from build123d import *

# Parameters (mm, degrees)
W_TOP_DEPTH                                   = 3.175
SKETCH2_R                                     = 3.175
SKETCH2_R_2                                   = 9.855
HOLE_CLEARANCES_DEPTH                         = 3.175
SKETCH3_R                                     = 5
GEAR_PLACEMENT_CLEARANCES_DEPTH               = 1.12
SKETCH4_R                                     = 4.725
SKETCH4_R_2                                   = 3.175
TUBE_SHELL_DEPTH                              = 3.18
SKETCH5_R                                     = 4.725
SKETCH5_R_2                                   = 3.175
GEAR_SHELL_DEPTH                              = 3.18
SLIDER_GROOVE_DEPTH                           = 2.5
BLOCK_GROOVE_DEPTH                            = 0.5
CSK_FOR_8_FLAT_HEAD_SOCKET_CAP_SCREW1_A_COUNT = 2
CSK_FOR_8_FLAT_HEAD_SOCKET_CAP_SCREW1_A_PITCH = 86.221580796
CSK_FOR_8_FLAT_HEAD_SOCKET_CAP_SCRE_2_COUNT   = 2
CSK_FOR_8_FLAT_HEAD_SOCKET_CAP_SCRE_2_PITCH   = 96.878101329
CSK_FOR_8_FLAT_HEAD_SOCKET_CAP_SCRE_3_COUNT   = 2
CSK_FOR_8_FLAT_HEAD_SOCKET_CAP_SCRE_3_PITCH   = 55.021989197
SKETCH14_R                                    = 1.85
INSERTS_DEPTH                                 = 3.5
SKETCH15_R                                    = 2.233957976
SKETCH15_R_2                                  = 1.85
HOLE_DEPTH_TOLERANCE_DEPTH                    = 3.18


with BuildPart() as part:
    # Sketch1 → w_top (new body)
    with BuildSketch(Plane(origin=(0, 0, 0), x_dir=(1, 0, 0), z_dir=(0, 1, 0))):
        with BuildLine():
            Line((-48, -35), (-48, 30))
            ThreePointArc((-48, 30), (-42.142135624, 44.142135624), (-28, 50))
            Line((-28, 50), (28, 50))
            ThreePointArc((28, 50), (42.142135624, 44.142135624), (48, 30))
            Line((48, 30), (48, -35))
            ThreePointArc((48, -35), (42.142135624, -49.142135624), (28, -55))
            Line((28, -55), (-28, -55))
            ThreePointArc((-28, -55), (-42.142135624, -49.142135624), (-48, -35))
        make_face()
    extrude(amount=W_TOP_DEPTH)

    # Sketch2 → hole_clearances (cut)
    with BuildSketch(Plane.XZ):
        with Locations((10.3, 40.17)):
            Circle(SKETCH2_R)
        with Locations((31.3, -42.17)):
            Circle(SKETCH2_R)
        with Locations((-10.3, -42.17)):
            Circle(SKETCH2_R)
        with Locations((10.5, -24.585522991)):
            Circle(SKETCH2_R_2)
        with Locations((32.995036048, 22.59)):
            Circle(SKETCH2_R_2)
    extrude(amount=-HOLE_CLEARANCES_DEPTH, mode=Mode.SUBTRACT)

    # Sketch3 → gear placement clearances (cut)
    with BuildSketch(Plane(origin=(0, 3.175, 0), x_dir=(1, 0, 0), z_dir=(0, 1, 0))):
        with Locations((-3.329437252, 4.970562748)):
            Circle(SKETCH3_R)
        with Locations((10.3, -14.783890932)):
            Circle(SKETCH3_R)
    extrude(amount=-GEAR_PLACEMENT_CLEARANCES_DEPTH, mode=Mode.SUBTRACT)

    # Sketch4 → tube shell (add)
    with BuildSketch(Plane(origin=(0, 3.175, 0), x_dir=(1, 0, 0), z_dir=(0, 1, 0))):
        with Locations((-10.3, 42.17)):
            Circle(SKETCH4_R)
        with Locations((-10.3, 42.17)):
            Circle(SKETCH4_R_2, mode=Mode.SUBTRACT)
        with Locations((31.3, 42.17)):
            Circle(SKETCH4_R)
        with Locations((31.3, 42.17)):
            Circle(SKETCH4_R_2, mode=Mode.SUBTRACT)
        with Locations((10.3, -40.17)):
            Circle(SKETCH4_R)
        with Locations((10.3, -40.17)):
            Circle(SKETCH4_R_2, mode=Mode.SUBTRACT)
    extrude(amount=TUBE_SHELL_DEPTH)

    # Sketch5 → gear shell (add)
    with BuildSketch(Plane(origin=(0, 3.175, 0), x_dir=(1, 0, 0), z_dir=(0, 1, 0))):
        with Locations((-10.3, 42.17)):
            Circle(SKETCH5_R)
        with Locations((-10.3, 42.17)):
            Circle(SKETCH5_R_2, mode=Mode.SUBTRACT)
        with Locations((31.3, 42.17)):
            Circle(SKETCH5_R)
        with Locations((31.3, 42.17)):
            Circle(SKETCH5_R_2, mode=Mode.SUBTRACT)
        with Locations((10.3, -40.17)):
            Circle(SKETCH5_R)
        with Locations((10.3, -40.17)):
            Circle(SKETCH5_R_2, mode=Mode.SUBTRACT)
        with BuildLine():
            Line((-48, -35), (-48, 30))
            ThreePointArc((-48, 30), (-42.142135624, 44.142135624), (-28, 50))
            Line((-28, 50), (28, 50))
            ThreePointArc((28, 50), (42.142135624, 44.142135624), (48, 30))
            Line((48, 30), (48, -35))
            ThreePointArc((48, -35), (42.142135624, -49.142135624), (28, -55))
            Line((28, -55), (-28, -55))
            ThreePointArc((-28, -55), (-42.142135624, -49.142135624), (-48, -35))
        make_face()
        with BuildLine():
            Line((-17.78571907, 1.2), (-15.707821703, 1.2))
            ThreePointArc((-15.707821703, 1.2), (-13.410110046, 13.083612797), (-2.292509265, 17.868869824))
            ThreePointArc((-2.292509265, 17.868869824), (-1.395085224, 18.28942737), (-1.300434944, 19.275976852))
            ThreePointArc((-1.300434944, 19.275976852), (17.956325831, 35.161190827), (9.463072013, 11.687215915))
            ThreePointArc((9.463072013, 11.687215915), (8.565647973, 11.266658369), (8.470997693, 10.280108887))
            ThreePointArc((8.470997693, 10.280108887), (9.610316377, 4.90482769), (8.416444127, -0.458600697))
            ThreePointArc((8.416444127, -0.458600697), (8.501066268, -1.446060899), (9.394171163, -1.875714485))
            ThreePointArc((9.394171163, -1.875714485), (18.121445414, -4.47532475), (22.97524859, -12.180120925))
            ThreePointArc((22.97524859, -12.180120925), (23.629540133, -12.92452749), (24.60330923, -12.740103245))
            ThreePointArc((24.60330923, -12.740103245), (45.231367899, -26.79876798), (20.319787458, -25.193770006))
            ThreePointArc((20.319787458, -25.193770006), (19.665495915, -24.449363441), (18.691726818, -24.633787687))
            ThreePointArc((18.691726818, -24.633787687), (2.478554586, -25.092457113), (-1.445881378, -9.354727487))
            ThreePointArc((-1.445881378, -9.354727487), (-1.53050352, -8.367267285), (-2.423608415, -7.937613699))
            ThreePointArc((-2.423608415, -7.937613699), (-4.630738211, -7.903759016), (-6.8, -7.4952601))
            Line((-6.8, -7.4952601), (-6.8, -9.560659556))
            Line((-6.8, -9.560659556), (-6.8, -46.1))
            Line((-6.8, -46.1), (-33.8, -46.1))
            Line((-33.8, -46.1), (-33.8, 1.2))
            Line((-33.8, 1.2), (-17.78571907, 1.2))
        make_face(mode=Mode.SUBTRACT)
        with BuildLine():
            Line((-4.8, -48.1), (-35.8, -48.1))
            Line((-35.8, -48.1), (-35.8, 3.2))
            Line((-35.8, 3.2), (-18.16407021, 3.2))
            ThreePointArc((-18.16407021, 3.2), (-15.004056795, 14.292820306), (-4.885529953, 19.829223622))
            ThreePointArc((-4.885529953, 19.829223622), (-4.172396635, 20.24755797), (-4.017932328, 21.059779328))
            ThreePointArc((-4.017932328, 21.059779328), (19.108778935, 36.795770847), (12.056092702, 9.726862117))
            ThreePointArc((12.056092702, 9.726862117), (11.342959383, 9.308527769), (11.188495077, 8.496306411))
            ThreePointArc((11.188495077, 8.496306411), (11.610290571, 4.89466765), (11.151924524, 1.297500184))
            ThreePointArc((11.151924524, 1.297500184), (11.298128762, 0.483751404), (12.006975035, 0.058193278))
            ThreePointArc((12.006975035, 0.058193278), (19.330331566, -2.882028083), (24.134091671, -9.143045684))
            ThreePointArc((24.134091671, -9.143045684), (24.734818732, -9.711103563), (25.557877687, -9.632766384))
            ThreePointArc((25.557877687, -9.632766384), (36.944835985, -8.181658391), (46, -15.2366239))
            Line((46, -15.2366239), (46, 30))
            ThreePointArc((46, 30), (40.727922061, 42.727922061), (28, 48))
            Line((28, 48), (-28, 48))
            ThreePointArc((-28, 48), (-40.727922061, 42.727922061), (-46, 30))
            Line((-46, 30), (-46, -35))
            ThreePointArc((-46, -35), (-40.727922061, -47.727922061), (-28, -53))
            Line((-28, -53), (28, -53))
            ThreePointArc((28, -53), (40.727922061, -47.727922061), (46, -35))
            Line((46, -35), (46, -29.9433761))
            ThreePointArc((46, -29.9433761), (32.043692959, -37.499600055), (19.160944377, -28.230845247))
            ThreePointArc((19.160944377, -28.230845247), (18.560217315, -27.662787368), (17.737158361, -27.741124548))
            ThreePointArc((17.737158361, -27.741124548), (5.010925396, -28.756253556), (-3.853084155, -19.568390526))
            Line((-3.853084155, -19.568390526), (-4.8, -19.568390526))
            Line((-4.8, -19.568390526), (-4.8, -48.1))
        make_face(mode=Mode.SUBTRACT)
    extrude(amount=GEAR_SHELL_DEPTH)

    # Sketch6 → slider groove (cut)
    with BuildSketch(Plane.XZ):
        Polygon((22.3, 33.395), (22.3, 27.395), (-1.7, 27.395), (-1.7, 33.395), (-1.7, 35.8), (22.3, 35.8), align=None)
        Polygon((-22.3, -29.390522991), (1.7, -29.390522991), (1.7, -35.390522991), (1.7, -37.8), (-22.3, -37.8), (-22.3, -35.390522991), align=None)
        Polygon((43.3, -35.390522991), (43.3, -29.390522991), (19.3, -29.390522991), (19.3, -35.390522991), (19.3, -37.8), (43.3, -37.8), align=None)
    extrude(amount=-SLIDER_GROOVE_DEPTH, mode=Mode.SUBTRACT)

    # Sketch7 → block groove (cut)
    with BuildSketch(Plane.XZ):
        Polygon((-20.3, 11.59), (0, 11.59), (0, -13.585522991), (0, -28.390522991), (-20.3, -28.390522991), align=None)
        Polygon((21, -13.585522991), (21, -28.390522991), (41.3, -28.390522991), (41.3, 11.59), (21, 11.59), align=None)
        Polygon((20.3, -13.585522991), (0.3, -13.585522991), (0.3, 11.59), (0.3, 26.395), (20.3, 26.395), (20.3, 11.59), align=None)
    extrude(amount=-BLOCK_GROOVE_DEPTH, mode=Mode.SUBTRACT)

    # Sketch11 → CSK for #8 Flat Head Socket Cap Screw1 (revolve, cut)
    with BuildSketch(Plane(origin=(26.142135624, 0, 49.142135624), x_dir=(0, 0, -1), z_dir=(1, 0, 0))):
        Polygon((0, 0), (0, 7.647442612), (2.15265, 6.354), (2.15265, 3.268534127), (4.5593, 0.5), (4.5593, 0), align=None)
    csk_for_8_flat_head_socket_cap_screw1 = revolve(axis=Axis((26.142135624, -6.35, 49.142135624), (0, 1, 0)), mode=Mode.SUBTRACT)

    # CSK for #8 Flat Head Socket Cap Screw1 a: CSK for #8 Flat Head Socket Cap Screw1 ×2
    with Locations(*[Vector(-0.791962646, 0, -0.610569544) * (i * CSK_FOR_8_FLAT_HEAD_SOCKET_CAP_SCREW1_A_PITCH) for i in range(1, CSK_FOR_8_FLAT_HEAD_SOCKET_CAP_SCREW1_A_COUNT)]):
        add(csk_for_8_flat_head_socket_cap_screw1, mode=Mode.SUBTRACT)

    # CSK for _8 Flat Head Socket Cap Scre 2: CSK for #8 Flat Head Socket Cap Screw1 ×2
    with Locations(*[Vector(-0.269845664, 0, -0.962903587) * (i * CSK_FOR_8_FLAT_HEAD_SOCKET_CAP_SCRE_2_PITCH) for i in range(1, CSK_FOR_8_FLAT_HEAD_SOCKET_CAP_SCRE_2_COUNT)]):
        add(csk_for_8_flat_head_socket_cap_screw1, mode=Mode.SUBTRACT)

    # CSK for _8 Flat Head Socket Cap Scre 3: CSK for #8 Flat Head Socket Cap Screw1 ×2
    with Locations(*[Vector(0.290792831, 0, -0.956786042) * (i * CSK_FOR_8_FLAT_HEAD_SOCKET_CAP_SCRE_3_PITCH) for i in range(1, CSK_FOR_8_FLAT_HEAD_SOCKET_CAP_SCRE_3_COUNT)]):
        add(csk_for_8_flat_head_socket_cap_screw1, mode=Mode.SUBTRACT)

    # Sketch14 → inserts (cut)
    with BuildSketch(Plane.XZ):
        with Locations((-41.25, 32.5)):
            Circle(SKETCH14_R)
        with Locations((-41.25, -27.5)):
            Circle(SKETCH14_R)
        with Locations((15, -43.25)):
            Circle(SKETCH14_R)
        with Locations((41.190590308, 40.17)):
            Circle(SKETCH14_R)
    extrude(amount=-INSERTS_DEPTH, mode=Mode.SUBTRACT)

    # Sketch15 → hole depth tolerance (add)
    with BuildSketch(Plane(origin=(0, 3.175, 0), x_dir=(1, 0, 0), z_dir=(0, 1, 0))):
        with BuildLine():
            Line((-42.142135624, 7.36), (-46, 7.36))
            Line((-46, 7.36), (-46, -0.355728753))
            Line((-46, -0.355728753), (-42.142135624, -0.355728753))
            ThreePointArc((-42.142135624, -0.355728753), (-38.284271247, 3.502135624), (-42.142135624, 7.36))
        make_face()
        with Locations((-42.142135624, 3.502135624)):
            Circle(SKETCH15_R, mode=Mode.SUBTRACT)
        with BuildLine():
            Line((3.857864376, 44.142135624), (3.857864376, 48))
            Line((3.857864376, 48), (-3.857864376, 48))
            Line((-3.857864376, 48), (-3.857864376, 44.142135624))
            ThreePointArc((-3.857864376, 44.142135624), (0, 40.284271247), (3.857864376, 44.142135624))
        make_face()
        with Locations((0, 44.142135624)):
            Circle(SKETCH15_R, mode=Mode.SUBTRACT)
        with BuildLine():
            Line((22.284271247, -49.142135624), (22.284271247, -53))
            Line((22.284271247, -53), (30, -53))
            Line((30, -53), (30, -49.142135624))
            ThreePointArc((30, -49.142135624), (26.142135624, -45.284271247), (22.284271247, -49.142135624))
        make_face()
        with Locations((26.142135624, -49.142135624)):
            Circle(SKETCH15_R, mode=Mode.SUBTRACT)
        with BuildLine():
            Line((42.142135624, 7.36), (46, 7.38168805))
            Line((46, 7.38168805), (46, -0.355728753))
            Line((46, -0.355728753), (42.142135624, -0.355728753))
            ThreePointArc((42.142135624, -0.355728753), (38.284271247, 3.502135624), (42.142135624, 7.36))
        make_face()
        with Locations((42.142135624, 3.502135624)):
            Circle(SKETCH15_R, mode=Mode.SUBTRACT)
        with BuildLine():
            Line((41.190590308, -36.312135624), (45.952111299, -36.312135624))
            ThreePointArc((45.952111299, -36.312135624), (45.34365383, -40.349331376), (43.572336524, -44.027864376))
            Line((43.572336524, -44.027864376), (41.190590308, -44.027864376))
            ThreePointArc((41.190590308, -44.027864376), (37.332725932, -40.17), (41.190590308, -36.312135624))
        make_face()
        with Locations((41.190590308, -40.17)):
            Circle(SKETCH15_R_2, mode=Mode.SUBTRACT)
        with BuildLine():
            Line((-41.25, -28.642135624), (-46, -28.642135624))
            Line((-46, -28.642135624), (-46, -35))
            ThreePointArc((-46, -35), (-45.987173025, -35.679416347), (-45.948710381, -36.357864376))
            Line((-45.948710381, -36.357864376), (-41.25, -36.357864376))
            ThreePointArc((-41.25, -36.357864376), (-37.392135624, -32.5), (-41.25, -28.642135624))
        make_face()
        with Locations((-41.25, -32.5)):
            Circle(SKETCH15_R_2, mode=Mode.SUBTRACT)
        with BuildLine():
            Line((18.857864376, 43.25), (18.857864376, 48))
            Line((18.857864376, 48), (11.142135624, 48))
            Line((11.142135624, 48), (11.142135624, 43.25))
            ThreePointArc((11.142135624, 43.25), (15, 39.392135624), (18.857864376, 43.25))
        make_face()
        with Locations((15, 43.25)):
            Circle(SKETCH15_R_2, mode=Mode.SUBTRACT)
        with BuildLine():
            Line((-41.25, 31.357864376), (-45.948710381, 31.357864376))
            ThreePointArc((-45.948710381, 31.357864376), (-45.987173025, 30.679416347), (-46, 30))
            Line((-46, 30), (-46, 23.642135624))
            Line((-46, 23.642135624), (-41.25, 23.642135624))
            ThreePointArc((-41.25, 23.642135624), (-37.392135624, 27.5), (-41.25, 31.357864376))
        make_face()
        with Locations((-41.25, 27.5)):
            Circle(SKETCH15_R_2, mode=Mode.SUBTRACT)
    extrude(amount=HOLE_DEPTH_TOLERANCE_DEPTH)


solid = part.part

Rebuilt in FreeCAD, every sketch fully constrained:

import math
import FreeCAD as App
import Part
import Sketcher

V = App.Vector
Q = App.Units.Quantity

doc = App.newDocument("Part")
params = doc.addObject("Spreadsheet::Sheet", "Params")
for row, (alias, value) in enumerate([
    ("sketch1_radius", "20 mm"),
    ("sketch1_width", "56 mm"),
    ("sketch1_height", "65 mm"),
    ("pad1_length", "3.175 mm"),
    ("sketch2_diameter", "6.35 mm"),
    ("sketch2_diameter2", "19.71 mm"),
    ("pocket1_length", "3.175 mm"),
    ("sketch3_diameter", "10 mm"),
    ("pocket2_length", "1.12 mm"),
    ("sketch4_diameter", "9.45 mm"),
    ("sketch4_diameter2", "6.35 mm"),
    ("pad2_length", "3.18 mm"),
    ("sketch5_radius", "20 mm"),
    ("sketch5_radius2", "1 mm"),
    ("sketch5_radius3", "18 mm"),
    ("sketch5_width", "56 mm"),
    ("sketch5_width2", "27 mm"),
    ("pad3_length", "3.18 mm"),
    ("sketch6_width", "24 mm"),
    ("pocket3_length", "2.5 mm"),
    ("sketch7_width", "20 mm"),
    ("sketch7_width2", "20.3 mm"),
    ("pocket4_length", "0.5 mm"),
    ("sketch8_width", "0.5 mm"),
    ("groove_angle", "360 deg"),
    ("linearpattern_pitch", "86.221581 mm"),
    ("linearpattern2_pitch", "96.878101 mm"),
    ("linearpattern3_pitch", "55.021989 mm"),
    ("sketch9_diameter", "3.7 mm"),
    ("pocket5_length", "3.5 mm"),
    ("sketch10_radius", "18 mm"),
    ("sketch10_diameter", "3.7 mm"),
    ("sketch10_width", "4.75 mm"),
    ("pad4_length", "3.18 mm"),
], start=1):
    params.set(f"A{row}", alias)
    params.set(f"B{row}", "=" + value)
    params.setAlias(f"B{row}", alias)

body = doc.addObject("PartDesign::Body", "Body")

# Sketch on XZ plane
sketch1 = body.newObject("Sketcher::SketchObject", "Sketch")
sketch1.AttachmentSupport = (doc.getObject("XZ_Plane"), [""])
sketch1.MapMode = "FlatFace"
sketch1.addGeometry([
    Part.LineSegment(V(-48, -30, 0), V(-48, 35, 0)),  # 0
    Part.ArcOfCircle(Part.Circle(V(-28, 35, 0), V(0, 0, 1), 20), math.radians(90), math.radians(180)),  # 1
    Part.LineSegment(V(-28, 55, 0), V(28, 55, 0)),  # 2
    Part.ArcOfCircle(Part.Circle(V(28, 35, 0), V(0, 0, 1), 20), math.radians(0), math.radians(90)),  # 3
    Part.LineSegment(V(48, 35, 0), V(48, -30, 0)),  # 4
    Part.ArcOfCircle(Part.Circle(V(28, -30, 0), V(0, 0, 1), 20), math.radians(-90), math.radians(0)),  # 5
    Part.LineSegment(V(28, -50, 0), V(-28, -50, 0)),  # 6
    Part.ArcOfCircle(Part.Circle(V(-28, -30, 0), V(0, 0, 1), 20), math.radians(180), math.radians(270)),  # 7
], False)
sketch1.addConstraint([
    Sketcher.Constraint("Tangent", 0, 2, 1, 2),
    Sketcher.Constraint("Tangent", 1, 1, 2, 1),
    Sketcher.Constraint("Tangent", 2, 2, 3, 2),
    Sketcher.Constraint("Tangent", 3, 1, 4, 1),
    Sketcher.Constraint("Tangent", 4, 2, 5, 2),
    Sketcher.Constraint("Tangent", 5, 1, 6, 1),
    Sketcher.Constraint("Tangent", 6, 2, 7, 2),
    Sketcher.Constraint("Tangent", 7, 1, 0, 1),
    Sketcher.Constraint("Vertical", 0),
    Sketcher.Constraint("Horizontal", 2),
    Sketcher.Constraint("Vertical", 4),
    Sketcher.Constraint("Horizontal", 6),
    Sketcher.Constraint("Equal", 1, 3),
    Sketcher.Constraint("Equal", 3, 5),
    Sketcher.Constraint("Equal", 5, 7),
    Sketcher.Constraint("Radius", 1, Q("20 mm")),
    Sketcher.Constraint("DistanceX", 2, 1, 2, 2, Q("56 mm")),
    Sketcher.Constraint("DistanceY", 0, 1, 0, 2, Q("65 mm")),
    Sketcher.Constraint("DistanceX", 1, 3, -1, 1, Q("28 mm")),
    Sketcher.Constraint("DistanceY", -1, 1, 1, 3, Q("35 mm")),
])
sketch1.setExpression("Constraints[15]", "Params.sketch1_radius")
sketch1.setExpression("Constraints[16]", "Params.sketch1_width")
sketch1.setExpression("Constraints[17]", "Params.sketch1_height")
pad1 = body.newObject("PartDesign::Pad", "Pad")
pad1.Profile = sketch1
pad1.setExpression("Length", "Params.pad1_length")
pad1.Reversed = True

# Sketch on XZ plane
sketch2 = body.newObject("Sketcher::SketchObject", "Sketch001")
sketch2.AttachmentSupport = (doc.getObject("XZ_Plane"), [""])
sketch2.MapMode = "FlatFace"
sketch2.addGeometry([
    Part.Circle(V(10.3, 40.2, 0), V(0, 0, 1), 3.2),  # 0
    Part.Circle(V(31.3, -42.2, 0), V(0, 0, 1), 3.2),  # 1
    Part.Circle(V(-10.3, -42.2, 0), V(0, 0, 1), 3.2),  # 2
    Part.Circle(V(10.5, -24.6, 0), V(0, 0, 1), 9.9),  # 3
    Part.Circle(V(33, 22.6, 0), V(0, 0, 1), 9.9),  # 4
], False)
sketch2.addConstraint([
    Sketcher.Constraint("Equal", 0, 1),
    Sketcher.Constraint("Equal", 1, 2),
    Sketcher.Constraint("Equal", 3, 4),
    Sketcher.Constraint("Horizontal", 1, 3, 2, 3),
    Sketcher.Constraint("Diameter", 0, Q("6.35 mm")),
    Sketcher.Constraint("Diameter", 3, Q("19.71 mm")),
    Sketcher.Constraint("DistanceX", 0, 3, 1, 3, Q("21 mm")),
    Sketcher.Constraint("DistanceX", -1, 1, 0, 3, Q("10.3 mm")),
    Sketcher.Constraint("DistanceX", 2, 3, -1, 1, Q("10.3 mm")),
    Sketcher.Constraint("DistanceX", -1, 1, 3, 3, Q("10.5 mm")),
    Sketcher.Constraint("DistanceY", -1, 1, 0, 3, Q("40.17 mm")),
    Sketcher.Constraint("DistanceY", 1, 3, -1, 1, Q("42.17 mm")),
    Sketcher.Constraint("DistanceY", -1, 1, 4, 3, Q("22.59 mm")),
    Sketcher.Constraint("DistanceY", 3, 3, -1, 1, Q("24.585523 mm")),
    Sketcher.Constraint("DistanceX", -1, 1, 4, 3, Q("32.995036 mm")),
])
sketch2.setExpression("Constraints[4]", "Params.sketch2_diameter")
sketch2.setExpression("Constraints[5]", "Params.sketch2_diameter2")
pocket1 = body.newObject("PartDesign::Pocket", "Pocket")
pocket1.Profile = sketch2
pocket1.setExpression("Length", "Params.pocket1_length")

# Sketch on XZ plane
sketch3 = body.newObject("Sketcher::SketchObject", "Sketch002")
sketch3.AttachmentSupport = (doc.getObject("XZ_Plane"), [""])
sketch3.MapMode = "FlatFace"
sketch3.AttachmentOffset = App.Placement(V(0, 0, -3.175), App.Rotation())
sketch3.addGeometry([
    Part.Circle(V(-3, -5, 0), V(0, 0, 1), 5),
    Part.Circle(V(10, 15, 0), V(0, 0, 1), 5),
], False)
sketch3.addConstraint([
    Sketcher.Constraint("Equal", 0, 1),
    Sketcher.Constraint("Diameter", 0, Q("10 mm")),
    Sketcher.Constraint("DistanceX", -1, 1, 1, 3, Q("10.3 mm")),
    Sketcher.Constraint("DistanceY", -1, 1, 1, 3, Q("14.783891 mm")),
    Sketcher.Constraint("DistanceX", 0, 3, -1, 1, Q("3.329437 mm")),
    Sketcher.Constraint("DistanceY", 0, 3, -1, 1, Q("4.970563 mm")),
])
sketch3.setExpression("Constraints[1]", "Params.sketch3_diameter")
pocket2 = body.newObject("PartDesign::Pocket", "Pocket001")
pocket2.Profile = sketch3
pocket2.setExpression("Length", "Params.pocket2_length")
pocket2.Reversed = True

# Sketch on XZ plane
sketch4 = body.newObject("Sketcher::SketchObject", "Sketch003")
sketch4.AttachmentSupport = (doc.getObject("XZ_Plane"), [""])
sketch4.MapMode = "FlatFace"
sketch4.AttachmentOffset = App.Placement(V(0, 0, -3.175), App.Rotation())
sketch4.addGeometry([
    Part.Circle(V(-10.3, -42.2, 0), V(0, 0, 1), 4.7),  # 0
    Part.Circle(V(-10.3, -42.2, 0), V(0, 0, 1), 3.2),  # 1
    Part.Circle(V(31.3, -42.2, 0), V(0, 0, 1), 4.7),  # 2
    Part.Circle(V(31.3, -42.2, 0), V(0, 0, 1), 3.2),  # 3
    Part.Circle(V(10.3, 40.2, 0), V(0, 0, 1), 4.7),  # 4
    Part.Circle(V(10.3, 40.2, 0), V(0, 0, 1), 3.2),  # 5
], False)
sketch4.addConstraint([
    Sketcher.Constraint("Coincident", 1, 3, 0, 3),
    Sketcher.Constraint("Coincident", 3, 3, 2, 3),
    Sketcher.Constraint("Coincident", 5, 3, 4, 3),
    Sketcher.Constraint("Equal", 0, 2),
    Sketcher.Constraint("Equal", 1, 3),
    Sketcher.Constraint("Equal", 2, 4),
    Sketcher.Constraint("Equal", 3, 5),
    Sketcher.Constraint("Horizontal", 1, 3, 2, 3),
    Sketcher.Constraint("Diameter", 0, Q("9.45 mm")),
    Sketcher.Constraint("Diameter", 1, Q("6.35 mm")),
    Sketcher.Constraint("DistanceX", 4, 3, 2, 3, Q("21 mm")),
    Sketcher.Constraint("DistanceX", 0, 3, -1, 1, Q("10.3 mm")),
    Sketcher.Constraint("DistanceX", -1, 1, 2, 3, Q("31.3 mm")),
    Sketcher.Constraint("DistanceY", 0, 3, -1, 1, Q("42.17 mm")),
    Sketcher.Constraint("DistanceY", -1, 1, 4, 3, Q("40.17 mm")),
])
sketch4.setExpression("Constraints[8]", "Params.sketch4_diameter")
sketch4.setExpression("Constraints[9]", "Params.sketch4_diameter2")
pad2 = body.newObject("PartDesign::Pad", "Pad001")
pad2.Profile = sketch4
pad2.setExpression("Length", "Params.pad2_length")
pad2.Reversed = True

# Sketch on XZ plane
sketch5 = body.newObject("Sketcher::SketchObject", "Sketch004")
sketch5.AttachmentSupport = (doc.getObject("XZ_Plane"), [""])
sketch5.MapMode = "FlatFace"
sketch5.AttachmentOffset = App.Placement(V(0, 0, -3.175), App.Rotation())
sketch5.addGeometry([
    Part.LineSegment(V(-48, -30, 0), V(-48, 35, 0)),  # 0
    Part.ArcOfCircle(Part.Circle(V(-28, 35, 0), V(0, 0, 1), 20), math.radians(90), math.radians(180)),  # 1
    Part.LineSegment(V(-28, 55, 0), V(28, 55, 0)),  # 2
    Part.ArcOfCircle(Part.Circle(V(28, 35, 0), V(0, 0, 1), 20), math.radians(0), math.radians(90)),  # 3
    Part.LineSegment(V(48, 35, 0), V(48, -30, 0)),  # 4
    Part.ArcOfCircle(Part.Circle(V(28, -30, 0), V(0, 0, 1), 20), math.radians(-90), math.radians(0)),  # 5
    Part.LineSegment(V(28, -50, 0), V(-28, -50, 0)),  # 6
    Part.ArcOfCircle(Part.Circle(V(-28, -30, 0), V(0, 0, 1), 20), math.radians(180), math.radians(270)),  # 7
    Part.LineSegment(V(-33.8, -1.2, 0), V(-15.7, -1.2, 0)),  # 8
    Part.ArcOfCircle(Part.Circle(V(-3.3, -5, 0), V(0, 0, 1), 12.9), math.radians(163), math.radians(275)),  # 9
    Part.ArcOfCircle(Part.Circle(V(-2.2, -18.9, 0), V(0, 0, 1), 1), math.radians(-24), math.radians(95)),  # 10
    Part.ArcOfCircle(Part.Circle(V(10.5, -24.6, 0), V(0, 0, 1), 12.9), math.radians(156), math.radians(455)),  # 11
    Part.ArcOfCircle(Part.Circle(V(9.4, -10.7, 0), V(0, 0, 1), 1), math.radians(156), math.radians(275)),  # 12
    Part.ArcOfCircle(Part.Circle(V(-3.3, -5, 0), V(0, 0, 1), 12.9), math.radians(-24), math.radians(25)),  # 13
    Part.ArcOfCircle(Part.Circle(V(9.3, 0.9, 0), V(0, 0, 1), 1), math.radians(86), math.radians(205)),  # 14
    Part.ArcOfCircle(Part.Circle(V(10.3, 14.8, 0), V(0, 0, 1), 12.9), math.radians(-94), math.radians(-12)),  # 15
    Part.ArcOfCircle(Part.Circle(V(24, 12, 0), V(0, 0, 1), 1), math.radians(50), math.radians(168)),  # 16
    Part.ArcOfCircle(Part.Circle(V(33, 22.6, 0), V(0, 0, 1), 12.9), math.radians(-130), math.radians(168)),  # 17
    Part.ArcOfCircle(Part.Circle(V(19.3, 25.4, 0), V(0, 0, 1), 1), math.radians(-130), math.radians(-12)),  # 18
    Part.ArcOfCircle(Part.Circle(V(10.3, 14.8, 0), V(0, 0, 1), 12.9), math.radians(50), math.radians(205)),  # 19
    Part.ArcOfCircle(Part.Circle(V(-2.4, 8.9, 0), V(0, 0, 1), 1), math.radians(-94), math.radians(25)),  # 20
    Part.ArcOfCircle(Part.Circle(V(-3.3, -5, 0), V(0, 0, 1), 12.9), math.radians(85.99), math.radians(105.56)),  # 21
    Part.LineSegment(V(-6.8, 7.5, 0), V(-6.8, 46.1, 0)),  # 22
    Part.LineSegment(V(-6.8, 46.1, 0), V(-33.8, 46.1, 0)),  # 23
    Part.LineSegment(V(-33.8, 46.1, 0), V(-33.8, -1.2, 0)),  # 24
    Part.LineSegment(V(-35.8, 48.1, 0), V(-4.8, 48.1, 0)),  # 25
    Part.LineSegment(V(-4.8, 48.1, 0), V(-4.8, 19.6, 0)),  # 26
    Part.LineSegment(V(-4.8, 19.6, 0), V(-3.9, 19.6, 0)),  # 27
    Part.ArcOfCircle(Part.Circle(V(10.3, 14.8, 0), V(0, 0, 1), 14.9), math.radians(60), math.radians(161)),  # 28
    Part.ArcOfCircle(Part.Circle(V(18.2, 28.6, 0), V(0, 0, 1), 1), math.radians(-120), math.radians(-22)),  # 29
    Part.ArcOfCircle(Part.Circle(V(33, 22.6, 0), V(0, 0, 1), 14.9), math.radians(29), math.radians(158)),  # 30
    Part.LineSegment(V(46, 29.9, 0), V(46, 35, 0)),  # 31
    Part.ArcOfCircle(Part.Circle(V(28, 35, 0), V(0, 0, 1), 18), math.radians(0), math.radians(90)),  # 32
    Part.LineSegment(V(28, 53, 0), V(-28, 53, 0)),  # 33
    Part.ArcOfCircle(Part.Circle(V(-28, 35, 0), V(0, 0, 1), 18), math.radians(90), math.radians(180)),  # 34
    Part.LineSegment(V(-46, 35, 0), V(-46, -30, 0)),  # 35
    Part.ArcOfCircle(Part.Circle(V(-28, -30, 0), V(0, 0, 1), 18), math.radians(-180), math.radians(-90)),  # 36
    Part.LineSegment(V(-28, -48, 0), V(28, -48, 0)),  # 37
    Part.ArcOfCircle(Part.Circle(V(28, -30, 0), V(0, 0, 1), 18), math.radians(-90), math.radians(0)),  # 38
    Part.LineSegment(V(46, -30, 0), V(46, 15.2, 0)),  # 39
    Part.ArcOfCircle(Part.Circle(V(33, 22.6, 0), V(0, 0, 1), 14.9), math.radians(-120), math.radians(-29)),  # 40
    Part.ArcOfCircle(Part.Circle(V(25.1, 8.8, 0), V(0, 0, 1), 1), math.radians(60), math.radians(158)),  # 41
    Part.ArcOfCircle(Part.Circle(V(10.3, 14.8, 0), V(0, 0, 1), 14.9), math.radians(-83), math.radians(-22)),  # 42
    Part.ArcOfCircle(Part.Circle(V(12.1, -1.1, 0), V(0, 0, 1), 1), math.radians(97), math.radians(194)),  # 43
    Part.ArcOfCircle(Part.Circle(V(-3.3, -5, 0), V(0, 0, 1), 14.9), math.radians(-14), math.radians(14)),  # 44
    Part.ArcOfCircle(Part.Circle(V(12.2, -8.7, 0), V(0, 0, 1), 1), math.radians(166), math.radians(264)),  # 45
    Part.ArcOfCircle(Part.Circle(V(10.5, -24.6, 0), V(0, 0, 1), 14.9), math.radians(166), math.radians(444)),  # 46
    Part.ArcOfCircle(Part.Circle(V(-5, -20.8, 0), V(0, 0, 1), 1), math.radians(-14), math.radians(84)),  # 47
    Part.ArcOfCircle(Part.Circle(V(-3.3, -5, 0), V(0, 0, 1), 14.9), math.radians(173), math.radians(264)),  # 48
    Part.LineSegment(V(-18.2, -3.2, 0), V(-35.8, -3.2, 0)),  # 49
    Part.LineSegment(V(-35.8, -3.2, 0), V(-35.8, 48.1, 0)),  # 50
], False)
sketch5.addConstraint([
    Sketcher.Constraint("Tangent", 0, 2, 1, 2),
    Sketcher.Constraint("Tangent", 1, 1, 2, 1),
    Sketcher.Constraint("Tangent", 2, 2, 3, 2),
    Sketcher.Constraint("Tangent", 3, 1, 4, 1),
    Sketcher.Constraint("Tangent", 4, 2, 5, 2),
    Sketcher.Constraint("Tangent", 5, 1, 6, 1),
    Sketcher.Constraint("Tangent", 6, 2, 7, 2),
    Sketcher.Constraint("Tangent", 7, 1, 0, 1),
    Sketcher.Constraint("Coincident", 8, 2, 9, 1),
    Sketcher.Constraint("Tangent", 9, 2, 10, 2),
    Sketcher.Constraint("Tangent", 10, 1, 11, 1),
    Sketcher.Constraint("Tangent", 11, 2, 12, 2),
    Sketcher.Constraint("Tangent", 12, 1, 13, 1),
    Sketcher.Constraint("Tangent", 13, 2, 14, 2),
    Sketcher.Constraint("Tangent", 14, 1, 15, 1),
    Sketcher.Constraint("Tangent", 15, 2, 16, 2),
    Sketcher.Constraint("Tangent", 16, 1, 17, 1),
    Sketcher.Constraint("Tangent", 17, 2, 18, 2),
    Sketcher.Constraint("Tangent", 18, 1, 19, 1),
    Sketcher.Constraint("Tangent", 19, 2, 20, 2),
    Sketcher.Constraint("Tangent", 20, 1, 21, 1),
    Sketcher.Constraint("Coincident", 21, 2, 22, 1),
    Sketcher.Constraint("Coincident", 22, 2, 23, 1),
    Sketcher.Constraint("Coincident", 23, 2, 24, 1),
    Sketcher.Constraint("Coincident", 24, 2, 8, 1),
    Sketcher.Constraint("Coincident", 25, 2, 26, 1),
    Sketcher.Constraint("Coincident", 26, 2, 27, 1),
    Sketcher.Constraint("Coincident", 27, 2, 28, 2),
    Sketcher.Constraint("Tangent", 28, 1, 29, 1),
    Sketcher.Constraint("Tangent", 29, 2, 30, 2),
    Sketcher.Constraint("Coincident", 30, 1, 31, 1),
    Sketcher.Constraint("Tangent", 31, 2, 32, 1),
    Sketcher.Constraint("Tangent", 32, 2, 33, 1),
    Sketcher.Constraint("Tangent", 33, 2, 34, 1),
    Sketcher.Constraint("Tangent", 34, 2, 35, 1),
    Sketcher.Constraint("Tangent", 35, 2, 36, 1),
    Sketcher.Constraint("Tangent", 36, 2, 37, 1),
    Sketcher.Constraint("Tangent", 37, 2, 38, 1),
    Sketcher.Constraint("Tangent", 38, 2, 39, 1),
    Sketcher.Constraint("Coincident", 39, 2, 40, 2),
    Sketcher.Constraint("Tangent", 40, 1, 41, 1),
    Sketcher.Constraint("Tangent", 41, 2, 42, 2),
    Sketcher.Constraint("Tangent", 42, 1, 43, 1),
    Sketcher.Constraint("Tangent", 43, 2, 44, 2),
    Sketcher.Constraint("Tangent", 44, 1, 45, 1),
    Sketcher.Constraint("Tangent", 45, 2, 46, 2),
    Sketcher.Constraint("Tangent", 46, 1, 47, 1),
    Sketcher.Constraint("Tangent", 47, 2, 48, 2),
    Sketcher.Constraint("Coincident", 48, 1, 49, 1),
    Sketcher.Constraint("Coincident", 49, 2, 50, 1),
    Sketcher.Constraint("Coincident", 50, 2, 25, 1),
    Sketcher.Constraint("Vertical", 0),
    Sketcher.Constraint("Horizontal", 2),
    Sketcher.Constraint("Vertical", 4),
    Sketcher.Constraint("Horizontal", 6),
    Sketcher.Constraint("Horizontal", 8),
    Sketcher.Constraint("Vertical", 22),
    Sketcher.Constraint("Horizontal", 23),
    Sketcher.Constraint("Vertical", 24),
    Sketcher.Constraint("Horizontal", 25),
    Sketcher.Constraint("Vertical", 26),
    Sketcher.Constraint("Horizontal", 27),
    Sketcher.Constraint("Vertical", 31),
    Sketcher.Constraint("Horizontal", 33),
    Sketcher.Constraint("Vertical", 35),
    Sketcher.Constraint("Horizontal", 37),
    Sketcher.Constraint("Vertical", 39),
    Sketcher.Constraint("Horizontal", 49),
    Sketcher.Constraint("Vertical", 50),
    Sketcher.Constraint("Coincident", 13, 3, 9, 3),
    Sketcher.Constraint("Coincident", 19, 3, 15, 3),
    Sketcher.Constraint("Coincident", 21, 3, 9, 3),
    Sketcher.Constraint("Coincident", 28, 3, 15, 3),
    Sketcher.Constraint("Coincident", 30, 3, 17, 3),
    Sketcher.Constraint("Coincident", 32, 3, 3, 3),
    Sketcher.Constraint("Coincident", 34, 3, 1, 3),
    Sketcher.Constraint("Coincident", 36, 3, 7, 3),
    Sketcher.Constraint("Coincident", 38, 3, 5, 3),
    Sketcher.Constraint("Coincident", 40, 3, 17, 3),
    Sketcher.Constraint("Coincident", 42, 3, 15, 3),
    Sketcher.Constraint("Coincident", 44, 3, 9, 3),
    Sketcher.Constraint("Coincident", 46, 3, 11, 3),
    Sketcher.Constraint("Coincident", 48, 3, 9, 3),
    Sketcher.Constraint("Equal", 1, 3),
    Sketcher.Constraint("Equal", 3, 5),
    Sketcher.Constraint("Equal", 5, 7),
    Sketcher.Constraint("Equal", 9, 11),
    Sketcher.Constraint("Equal", 10, 12),
    Sketcher.Constraint("Equal", 11, 13),
    Sketcher.Constraint("Equal", 12, 14),
    Sketcher.Constraint("Equal", 13, 15),
    Sketcher.Constraint("Equal", 14, 16),
    Sketcher.Constraint("Equal", 15, 17),
    Sketcher.Constraint("Equal", 16, 18),
    Sketcher.Constraint("Equal", 17, 19),
    Sketcher.Constraint("Equal", 18, 20),
    Sketcher.Constraint("Equal", 19, 21),
    Sketcher.Constraint("Equal", 20, 29),
    Sketcher.Constraint("Equal", 28, 30),
    Sketcher.Constraint("Equal", 30, 40),
    Sketcher.Constraint("Equal", 29, 41),
    Sketcher.Constraint("Equal", 40, 42),
    Sketcher.Constraint("Equal", 41, 43),
    Sketcher.Constraint("Equal", 42, 44),
    Sketcher.Constraint("Equal", 43, 45),
    Sketcher.Constraint("Equal", 44, 46),
    Sketcher.Constraint("Equal", 45, 47),
    Sketcher.Constraint("Equal", 46, 48),
    Sketcher.Constraint("Radius", 1, Q("20 mm")),
    Sketcher.Constraint("Radius", 10, Q("1 mm")),
    Sketcher.Constraint("Radius", 32, Q("18 mm")),
    Sketcher.Constraint("DistanceX", 2, 1, 2, 2, Q("56 mm")),
    Sketcher.Constraint("DistanceX", 23, 2, 23, 1, Q("27 mm")),
    Sketcher.Constraint("DistanceX", 25, 1, 25, 2, Q("31 mm")),
    Sketcher.Constraint("DistanceY", 0, 1, 0, 2, Q("65 mm")),
    Sketcher.Constraint("DistanceY", 24, 2, 24, 1, Q("47.3 mm")),
    Sketcher.Constraint("DistanceY", 50, 1, 50, 2, Q("51.3 mm")),
    Sketcher.Constraint("DistanceX", 1, 3, -1, 1, Q("28 mm")),
    Sketcher.Constraint("DistanceY", -1, 1, 1, 3, Q("35 mm")),
    Sketcher.Constraint("DistanceX", -1, 1, 11, 3, Q("10.5 mm")),
    Sketcher.Constraint("DistanceX", -1, 1, 15, 3, Q("10.3 mm")),
    Sketcher.Constraint("DistanceY", 8, 2, -1, 1, Q("1.2 mm")),
    Sketcher.Constraint("DistanceX", 21, 2, -1, 1, Q("6.8 mm")),
    Sketcher.Constraint("DistanceX", 25, 2, -1, 1, Q("4.8 mm")),
    Sketcher.Constraint("DistanceY", -1, 1, 25, 2, Q("48.1 mm")),
    Sketcher.Constraint("DistanceY", -1, 1, 17, 3, Q("22.59 mm")),
    Sketcher.Constraint("Radius", 9, Q("12.939921 mm")),
    Sketcher.Constraint("Radius", 28, Q("14.939921 mm")),
    Sketcher.Constraint("DistanceX", 8, 1, 8, 2, Q("18.092178 mm")),
    Sketcher.Constraint("DistanceX", 49, 2, 49, 1, Q("17.63593 mm")),
    Sketcher.Constraint("DistanceY", 26, 2, 26, 1, Q("28.531609 mm")),
    Sketcher.Constraint("DistanceY", -1, 1, 16, 3, Q("11.978901 mm")),
    Sketcher.Constraint("DistanceY", 45, 3, -1, 1, Q("8.732301 mm")),
    Sketcher.Constraint("DistanceY", -1, 1, 13, 2, Q("0.458601 mm")),
])
sketch5.setExpression("Constraints[108]", "Params.sketch5_radius")
sketch5.setExpression("Constraints[109]", "Params.sketch5_radius2")
sketch5.setExpression("Constraints[110]", "Params.sketch5_radius3")
sketch5.setExpression("Constraints[111]", "Params.sketch5_width")
sketch5.setExpression("Constraints[112]", "Params.sketch5_width2")
pad3 = body.newObject("PartDesign::Pad", "Pad002")
pad3.Profile = sketch5
pad3.setExpression("Length", "Params.pad3_length")
pad3.Reversed = True

# Sketch on XZ plane
sketch6 = body.newObject("Sketcher::SketchObject", "Sketch005")
sketch6.AttachmentSupport = (doc.getObject("XZ_Plane"), [""])
sketch6.MapMode = "FlatFace"
sketch6.addGeometry([
    Part.LineSegment(V(22, 27, 0), V(22, 36, 0)),  # 0
    Part.LineSegment(V(22, 36, 0), V(-2, 36, 0)),  # 1
    Part.LineSegment(V(-2, 36, 0), V(-2, 27, 0)),  # 2
    Part.LineSegment(V(-2, 27, 0), V(22, 27, 0)),  # 3
    Part.LineSegment(V(2, -29, 0), V(-22, -29, 0)),  # 4
    Part.LineSegment(V(-22, -29, 0), V(-22, -38, 0)),  # 5
    Part.LineSegment(V(-22, -38, 0), V(2, -38, 0)),  # 6
    Part.LineSegment(V(2, -38, 0), V(2, -29, 0)),  # 7
    Part.LineSegment(V(43, -29, 0), V(19, -29, 0)),  # 8
    Part.LineSegment(V(19, -29, 0), V(19, -38, 0)),  # 9
    Part.LineSegment(V(19, -38, 0), V(43, -38, 0)),  # 10
    Part.LineSegment(V(43, -38, 0), V(43, -29, 0)),  # 11
], False)
sketch6.addConstraint([
    Sketcher.Constraint("Coincident", 0, 2, 1, 1),
    Sketcher.Constraint("Coincident", 1, 2, 2, 1),
    Sketcher.Constraint("Coincident", 2, 2, 3, 1),
    Sketcher.Constraint("Coincident", 3, 2, 0, 1),
    Sketcher.Constraint("Coincident", 4, 2, 5, 1),
    Sketcher.Constraint("Coincident", 5, 2, 6, 1),
    Sketcher.Constraint("Coincident", 6, 2, 7, 1),
    Sketcher.Constraint("Coincident", 7, 2, 4, 1),
    Sketcher.Constraint("Coincident", 8, 2, 9, 1),
    Sketcher.Constraint("Coincident", 9, 2, 10, 1),
    Sketcher.Constraint("Coincident", 10, 2, 11, 1),
    Sketcher.Constraint("Coincident", 11, 2, 8, 1),
    Sketcher.Constraint("Vertical", 0),
    Sketcher.Constraint("Horizontal", 1),
    Sketcher.Constraint("Vertical", 2),
    Sketcher.Constraint("Horizontal", 3),
    Sketcher.Constraint("Horizontal", 4),
    Sketcher.Constraint("Vertical", 5),
    Sketcher.Constraint("Horizontal", 6),
    Sketcher.Constraint("Vertical", 7),
    Sketcher.Constraint("Horizontal", 8),
    Sketcher.Constraint("Vertical", 9),
    Sketcher.Constraint("Horizontal", 10),
    Sketcher.Constraint("Vertical", 11),
    Sketcher.Constraint("Horizontal", 7, 2, 8, 2),
    Sketcher.Constraint("Horizontal", 6, 2, 9, 2),
    Sketcher.Constraint("Equal", 3, 4),
    Sketcher.Constraint("Equal", 6, 8),
    Sketcher.Constraint("DistanceX", 1, 2, 1, 1, Q("24 mm")),
    Sketcher.Constraint("DistanceX", 8, 2, 3, 2, Q("3 mm")),
    Sketcher.Constraint("DistanceX", -1, 1, 0, 2, Q("22.3 mm")),
    Sketcher.Constraint("DistanceY", -1, 1, 0, 2, Q("35.8 mm")),
    Sketcher.Constraint("DistanceX", 4, 2, -1, 1, Q("22.3 mm")),
    Sketcher.Constraint("DistanceY", 5, 2, -1, 1, Q("37.8 mm")),
    Sketcher.Constraint("DistanceY", 0, 1, 0, 2, Q("8.405 mm")),
    Sketcher.Constraint("DistanceY", 5, 2, 5, 1, Q("8.409477 mm")),
])
sketch6.setExpression("Constraints[28]", "Params.sketch6_width")
pocket3 = body.newObject("PartDesign::Pocket", "Pocket002")
pocket3.Profile = sketch6
pocket3.setExpression("Length", "Params.pocket3_length")

# Sketch on XZ plane
sketch7 = body.newObject("Sketcher::SketchObject", "Sketch006")
sketch7.AttachmentSupport = (doc.getObject("XZ_Plane"), [""])
sketch7.MapMode = "FlatFace"
sketch7.addGeometry([
    Part.LineSegment(V(0, 12, 0), V(-20, 12, 0)),  # 0
    Part.LineSegment(V(-20, 12, 0), V(-20, -28, 0)),  # 1
    Part.LineSegment(V(-20, -28, 0), V(0, -28, 0)),  # 2
    Part.LineSegment(V(0, -28, 0), V(0, 12, 0)),  # 3
    Part.LineSegment(V(21, -28, 0), V(41, -28, 0)),  # 4
    Part.LineSegment(V(41, -28, 0), V(41, 12, 0)),  # 5
    Part.LineSegment(V(41, 12, 0), V(21, 12, 0)),  # 6
    Part.LineSegment(V(21, 12, 0), V(21, -28, 0)),  # 7
    Part.LineSegment(V(0, -14, 0), V(20, -14, 0)),  # 8
    Part.LineSegment(V(20, -14, 0), V(20, 26, 0)),  # 9
    Part.LineSegment(V(20, 26, 0), V(0, 26, 0)),  # 10
    Part.LineSegment(V(0, 26, 0), V(0, -14, 0)),  # 11
], False)
sketch7.addConstraint([
    Sketcher.Constraint("Coincident", 0, 2, 1, 1),
    Sketcher.Constraint("Coincident", 1, 2, 2, 1),
    Sketcher.Constraint("Coincident", 2, 2, 3, 1),
    Sketcher.Constraint("Coincident", 3, 2, 0, 1),
    Sketcher.Constraint("Coincident", 4, 2, 5, 1),
    Sketcher.Constraint("Coincident", 5, 2, 6, 1),
    Sketcher.Constraint("Coincident", 6, 2, 7, 1),
    Sketcher.Constraint("Coincident", 7, 2, 4, 1),
    Sketcher.Constraint("Coincident", 8, 2, 9, 1),
    Sketcher.Constraint("Coincident", 9, 2, 10, 1),
    Sketcher.Constraint("Coincident", 10, 2, 11, 1),
    Sketcher.Constraint("Coincident", 11, 2, 8, 1),
    Sketcher.Constraint("Horizontal", 0),
    Sketcher.Constraint("Vertical", 1),
    Sketcher.Constraint("Horizontal", 2),
    Sketcher.Constraint("Vertical", 3),
    Sketcher.Constraint("Horizontal", 4),
    Sketcher.Constraint("Vertical", 5),
    Sketcher.Constraint("Horizontal", 6),
    Sketcher.Constraint("Vertical", 7),
    Sketcher.Constraint("Horizontal", 8),
    Sketcher.Constraint("Vertical", 9),
    Sketcher.Constraint("Horizontal", 10),
    Sketcher.Constraint("Vertical", 11),
    Sketcher.Constraint("PointOnObject", 2, 2, -2),
    Sketcher.Constraint("Horizontal", 2, 2, 4, 2),
    Sketcher.Constraint("Horizontal", 3, 2, 5, 2),
    Sketcher.Constraint("Equal", 2, 4),
    Sketcher.Constraint("Equal", 7, 9),
    Sketcher.Constraint("DistanceX", 8, 1, 8, 2, Q("20 mm")),
    Sketcher.Constraint("DistanceX", 0, 2, 0, 1, Q("20.3 mm")),
    Sketcher.Constraint("DistanceX", -1, 1, 6, 2, Q("21 mm")),
    Sketcher.Constraint("DistanceX", 8, 2, 4, 2, Q("21 mm")),
    Sketcher.Constraint("DistanceY", -1, 1, 0, 2, Q("11.59 mm")),
    Sketcher.Constraint("DistanceY", -1, 1, 9, 2, Q("26.395 mm")),
    Sketcher.Constraint("DistanceY", 1, 2, 1, 1, Q("39.980523 mm")),
])
sketch7.setExpression("Constraints[29]", "Params.sketch7_width")
sketch7.setExpression("Constraints[30]", "Params.sketch7_width2")
pocket4 = body.newObject("PartDesign::Pocket", "Pocket003")
pocket4.Profile = sketch7
pocket4.setExpression("Length", "Params.pocket4_length")

# Sketch on YZ plane
sketch8 = body.newObject("Sketcher::SketchObject", "Sketch007")
sketch8.AttachmentSupport = (doc.getObject("YZ_Plane"), [""])
sketch8.MapMode = "FlatFace"
sketch8.AttachmentOffset = App.Placement(V(0, 0, 26.142136), App.Rotation())
sketch8.addGeometry([
    Part.LineSegment(V(7.6, 49.1, 0), V(0, 49.1, 0)),  # 0
    Part.LineSegment(V(0, 49.1, 0), V(0, 44.6, 0)),  # 1
    Part.LineSegment(V(0, 44.6, 0), V(0.5, 44.6, 0)),  # 2
    Part.LineSegment(V(0.5, 44.6, 0), V(3.3, 47, 0)),  # 3
    Part.LineSegment(V(3.3, 47, 0), V(6.4, 47, 0)),  # 4
    Part.LineSegment(V(6.4, 47, 0), V(7.6, 49.1, 0)),  # 5
], False)
sketch8.addGeometry(Part.LineSegment(V(0, 49.1, 0), V(7.6, 49.1, 0)), True)  # axis
sketch8.addConstraint([
    Sketcher.Constraint("Coincident", 0, 2, 1, 1),
    Sketcher.Constraint("Coincident", 1, 2, 2, 1),
    Sketcher.Constraint("Coincident", 2, 2, 3, 1),
    Sketcher.Constraint("Coincident", 3, 2, 4, 1),
    Sketcher.Constraint("Coincident", 4, 2, 5, 1),
    Sketcher.Constraint("Coincident", 5, 2, 0, 1),
    Sketcher.Constraint("Horizontal", 0),
    Sketcher.Constraint("Vertical", 1),
    Sketcher.Constraint("Horizontal", 2),
    Sketcher.Constraint("Horizontal", 4),
    Sketcher.Constraint("Horizontal", 6),
    Sketcher.Constraint("Coincident", 6, 1, 0, 2),
    Sketcher.Constraint("PointOnObject", 0, 2, -2),
    Sketcher.Constraint("Equal", 0, 6),
    Sketcher.Constraint("Angle", 3, Q("41 deg")),
    Sketcher.Constraint("Angle", 5, Q("59 deg")),
    Sketcher.Constraint("DistanceX", 2, 1, 2, 2, Q("0.5 mm")),
    Sketcher.Constraint("DistanceY", 1, 2, 1, 1, Q("4.5593 mm")),
    Sketcher.Constraint("DistanceX", -1, 1, 4, 2, Q("6.354 mm")),
    Sketcher.Constraint("DistanceX", 0, 2, 0, 1, Q("7.647443 mm")),
    Sketcher.Constraint("DistanceY", -1, 1, 0, 2, Q("49.142136 mm")),
])
sketch8.setExpression("Constraints[16]", "Params.sketch8_width")
groove = body.newObject("PartDesign::Groove", "Groove")
groove.Profile = sketch8
groove.ReferenceAxis = (sketch8, ["Axis0"])
groove.setExpression("Angle", "Params.groove_angle")
doc.recompute()

datumline = body.newObject("PartDesign::Line", "DatumLine")
datumline.Placement = App.Placement(V(0, 0, 0), App.Rotation(V(0, 0, 1), V(-0.791962646, 0, -0.610569544)))
linearpattern = body.newObject("PartDesign::LinearPattern", "LinearPattern")
linearpattern.Originals = [groove]
linearpattern.Direction = (datumline, [""])
linearpattern.Mode = "offset"
linearpattern.setExpression("Offset", "Params.linearpattern_pitch")
linearpattern.Occurrences = 2
body.Tip = linearpattern
doc.recompute()

datumline2 = body.newObject("PartDesign::Line", "DatumLine001")
datumline2.Placement = App.Placement(V(0, 0, 0), App.Rotation(V(0, 0, 1), V(-0.269845664, 0, -0.962903587)))
linearpattern2 = body.newObject("PartDesign::LinearPattern", "LinearPattern001")
linearpattern2.Originals = [groove]
linearpattern2.Direction = (datumline2, [""])
linearpattern2.Mode = "offset"
linearpattern2.setExpression("Offset", "Params.linearpattern2_pitch")
linearpattern2.Occurrences = 2
body.Tip = linearpattern2
doc.recompute()

datumline3 = body.newObject("PartDesign::Line", "DatumLine002")
datumline3.Placement = App.Placement(V(0, 0, 0), App.Rotation(V(0, 0, 1), V(0.290792831, 0, -0.956786042)))
linearpattern3 = body.newObject("PartDesign::LinearPattern", "LinearPattern002")
linearpattern3.Originals = [groove]
linearpattern3.Direction = (datumline3, [""])
linearpattern3.Mode = "offset"
linearpattern3.setExpression("Offset", "Params.linearpattern3_pitch")
linearpattern3.Occurrences = 2
body.Tip = linearpattern3

# Sketch on XZ plane
sketch9 = body.newObject("Sketcher::SketchObject", "Sketch008")
sketch9.AttachmentSupport = (doc.getObject("XZ_Plane"), [""])
sketch9.MapMode = "FlatFace"
sketch9.addGeometry([
    Part.Circle(V(-41.2, 32.5, 0), V(0, 0, 1), 1.9),
    Part.Circle(V(-41.2, -27.5, 0), V(0, 0, 1), 1.9),
    Part.Circle(V(15, -43.2, 0), V(0, 0, 1), 1.9),
    Part.Circle(V(41.2, 40.2, 0), V(0, 0, 1), 1.9),
], False)
sketch9.addConstraint([
    Sketcher.Constraint("Equal", 0, 1),
    Sketcher.Constraint("Equal", 1, 2),
    Sketcher.Constraint("Equal", 2, 3),
    Sketcher.Constraint("Vertical", 0, 3, 1, 3),
    Sketcher.Constraint("Diameter", 0, Q("3.7 mm")),
    Sketcher.Constraint("DistanceX", -1, 1, 2, 3, Q("15 mm")),
    Sketcher.Constraint("DistanceY", 1, 3, 0, 3, Q("60 mm")),
    Sketcher.Constraint("DistanceY", -1, 1, 0, 3, Q("32.5 mm")),
    Sketcher.Constraint("DistanceX", 0, 3, -1, 1, Q("41.25 mm")),
    Sketcher.Constraint("DistanceY", 2, 3, -1, 1, Q("43.25 mm")),
    Sketcher.Constraint("DistanceY", -1, 1, 3, 3, Q("40.17 mm")),
    Sketcher.Constraint("DistanceX", -1, 1, 3, 3, Q("41.19059 mm")),
])
sketch9.setExpression("Constraints[4]", "Params.sketch9_diameter")
pocket5 = body.newObject("PartDesign::Pocket", "Pocket004")
pocket5.Profile = sketch9
pocket5.setExpression("Length", "Params.pocket5_length")

# Sketch on XZ plane
sketch10 = body.newObject("Sketcher::SketchObject", "Sketch009")
sketch10.AttachmentSupport = (doc.getObject("XZ_Plane"), [""])
sketch10.MapMode = "FlatFace"
sketch10.AttachmentOffset = App.Placement(V(0, 0, -3.175), App.Rotation())
sketch10.addGeometry([
    Part.LineSegment(V(-42.1, -7.4, 0), V(-46, -7.4, 0)),  # 0
    Part.LineSegment(V(-46, -7.4, 0), V(-46, 0.4, 0)),  # 1
    Part.LineSegment(V(-46, 0.4, 0), V(-42.1, 0.4, 0)),  # 2
    Part.ArcOfCircle(Part.Circle(V(-42.1, -3.5, 0), V(0, 0, 1), 3.9), math.radians(-90), math.radians(90)),  # 3
    Part.Circle(V(-42.1, -3.5, 0), V(0, 0, 1), 2.2),  # 4
    Part.LineSegment(V(3.9, -44.1, 0), V(3.9, -48, 0)),  # 5
    Part.LineSegment(V(3.9, -48, 0), V(-3.9, -48, 0)),  # 6
    Part.LineSegment(V(-3.9, -48, 0), V(-3.9, -44.1, 0)),  # 7
    Part.ArcOfCircle(Part.Circle(V(0, -44.1, 0), V(0, 0, 1), 3.9), math.radians(0), math.radians(180)),  # 8
    Part.Circle(V(0, -44.1, 0), V(0, 0, 1), 2.2),  # 9
    Part.LineSegment(V(22.3, 49.1, 0), V(22.3, 53, 0)),  # 10
    Part.LineSegment(V(22.3, 53, 0), V(30, 53, 0)),  # 11
    Part.LineSegment(V(30, 53, 0), V(30, 49.1, 0)),  # 12
    Part.ArcOfCircle(Part.Circle(V(26.1, 49.1, 0), V(0, 0, 1), 3.9), math.radians(180), math.radians(360)),  # 13
    Part.Circle(V(26.1, 49.1, 0), V(0, 0, 1), 2.2),  # 14
    Part.LineSegment(V(46, -7.4, 0), V(42.1, -7.4, 0)),  # 15
    Part.ArcOfCircle(Part.Circle(V(42.1, -3.5, 0), V(0, 0, 1), 3.9), math.radians(90), math.radians(270)),  # 16
    Part.LineSegment(V(42.1, 0.4, 0), V(46, 0.4, 0)),  # 17
    Part.LineSegment(V(46, 0.4, 0), V(46, -7.4, 0)),  # 18
    Part.Circle(V(42.1, -3.5, 0), V(0, 0, 1), 2.2),  # 19
    Part.LineSegment(V(46, 36.3, 0), V(41.2, 36.3, 0)),  # 20
    Part.ArcOfCircle(Part.Circle(V(41.2, 40.2, 0), V(0, 0, 1), 3.9), math.radians(90), math.radians(270)),  # 21
    Part.LineSegment(V(41.2, 44, 0), V(43.6, 44, 0)),  # 22
    Part.ArcOfCircle(Part.Circle(V(32.3, 36.3, 0), V(0, 0, 1), 13.7), math.radians(0), math.radians(34)),  # 23
    Part.Circle(V(41.2, 40.2, 0), V(0, 0, 1), 1.9),  # 24
    Part.LineSegment(V(-41.2, 28.6, 0), V(-46, 28.6, 0)),  # 25
    Part.LineSegment(V(-46, 28.6, 0), V(-46, 35, 0)),  # 26
    Part.ArcOfCircle(Part.Circle(V(-28, 35, 0), V(0, 0, 1), 18), math.radians(175.67), math.radians(180)),  # 27
    Part.LineSegment(V(-45.9, 36.4, 0), V(-41.2, 36.4, 0)),  # 28
    Part.ArcOfCircle(Part.Circle(V(-41.2, 32.5, 0), V(0, 0, 1), 3.9), math.radians(-90), math.radians(90)),  # 29
    Part.Circle(V(-41.2, 32.5, 0), V(0, 0, 1), 1.9),  # 30
    Part.LineSegment(V(18.9, -43.2, 0), V(18.9, -48, 0)),  # 31
    Part.LineSegment(V(18.9, -48, 0), V(11.1, -48, 0)),  # 32
    Part.LineSegment(V(11.1, -48, 0), V(11.1, -43.2, 0)),  # 33
    Part.ArcOfCircle(Part.Circle(V(15, -43.2, 0), V(0, 0, 1), 3.9), math.radians(0), math.radians(180)),  # 34
    Part.Circle(V(15, -43.2, 0), V(0, 0, 1), 1.9),  # 35
    Part.LineSegment(V(-41.2, -31.4, 0), V(-45.9, -31.4, 0)),  # 36
    Part.ArcOfCircle(Part.Circle(V(-28, -30, 0), V(0, 0, 1), 18), math.radians(180), math.radians(184.33)),  # 37
    Part.LineSegment(V(-46, -30, 0), V(-46, -23.6, 0)),  # 38
    Part.LineSegment(V(-46, -23.6, 0), V(-41.2, -23.6, 0)),  # 39
    Part.ArcOfCircle(Part.Circle(V(-41.2, -27.5, 0), V(0, 0, 1), 3.9), math.radians(-90), math.radians(90)),  # 40
    Part.Circle(V(-41.2, -27.5, 0), V(0, 0, 1), 1.9),  # 41
], False)
sketch10.addConstraint([
    Sketcher.Constraint("Coincident", 0, 2, 1, 1),
    Sketcher.Constraint("Coincident", 1, 2, 2, 1),
    Sketcher.Constraint("Tangent", 2, 2, 3, 2),
    Sketcher.Constraint("Tangent", 3, 1, 0, 1),
    Sketcher.Constraint("Coincident", 5, 2, 6, 1),
    Sketcher.Constraint("Coincident", 6, 2, 7, 1),
    Sketcher.Constraint("Tangent", 7, 2, 8, 2),
    Sketcher.Constraint("Tangent", 8, 1, 5, 1),
    Sketcher.Constraint("Coincident", 10, 2, 11, 1),
    Sketcher.Constraint("Coincident", 11, 2, 12, 1),
    Sketcher.Constraint("Tangent", 12, 2, 13, 2),
    Sketcher.Constraint("Tangent", 13, 1, 10, 1),
    Sketcher.Constraint("Coincident", 15, 2, 16, 2),
    Sketcher.Constraint("Tangent", 16, 1, 17, 1),
    Sketcher.Constraint("Coincident", 17, 2, 18, 1),
    Sketcher.Constraint("Coincident", 18, 2, 15, 1),
    Sketcher.Constraint("Tangent", 20, 2, 21, 2),
    Sketcher.Constraint("Tangent", 21, 1, 22, 1),
    Sketcher.Constraint("Coincident", 22, 2, 23, 2),
    Sketcher.Constraint("Coincident", 23, 1, 20, 1),
    Sketcher.Constraint("Coincident", 25, 2, 26, 1),
    Sketcher.Constraint("Tangent", 26, 2, 27, 2),
    Sketcher.Constraint("Coincident", 27, 1, 28, 1),
    Sketcher.Constraint("Tangent", 28, 2, 29, 2),
    Sketcher.Constraint("Tangent", 29, 1, 25, 1),
    Sketcher.Constraint("Coincident", 31, 2, 32, 1),
    Sketcher.Constraint("Coincident", 32, 2, 33, 1),
    Sketcher.Constraint("Tangent", 33, 2, 34, 2),
    Sketcher.Constraint("Tangent", 34, 1, 31, 1),
    Sketcher.Constraint("Coincident", 36, 2, 37, 2),
    Sketcher.Constraint("Tangent", 37, 1, 38, 1),
    Sketcher.Constraint("Coincident", 38, 2, 39, 1),
    Sketcher.Constraint("Tangent", 39, 2, 40, 2),
    Sketcher.Constraint("Tangent", 40, 1, 36, 1),
    Sketcher.Constraint("Horizontal", 0),
    Sketcher.Constraint("Vertical", 1),
    Sketcher.Constraint("Horizontal", 2),
    Sketcher.Constraint("Vertical", 5),
    Sketcher.Constraint("Horizontal", 6),
    Sketcher.Constraint("Vertical", 7),
    Sketcher.Constraint("Vertical", 10),
    Sketcher.Constraint("Horizontal", 11),
    Sketcher.Constraint("Vertical", 12),
    Sketcher.Constraint("Horizontal", 17),
    Sketcher.Constraint("Vertical", 18),
    Sketcher.Constraint("Horizontal", 20),
    Sketcher.Constraint("Horizontal", 22),
    Sketcher.Constraint("Horizontal", 25),
    Sketcher.Constraint("Vertical", 26),
    Sketcher.Constraint("Horizontal", 28),
    Sketcher.Constraint("Vertical", 31),
    Sketcher.Constraint("Horizontal", 32),
    Sketcher.Constraint("Vertical", 33),
    Sketcher.Constraint("Horizontal", 36),
    Sketcher.Constraint("Vertical", 38),
    Sketcher.Constraint("Horizontal", 39),
    Sketcher.Constraint("Coincident", 4, 3, 3, 3),
    Sketcher.Constraint("Coincident", 9, 3, 8, 3),
    Sketcher.Constraint("Coincident", 14, 3, 13, 3),
    Sketcher.Constraint("Coincident", 19, 3, 16, 3),
    Sketcher.Constraint("Coincident", 24, 3, 21, 3),
    Sketcher.Constraint("Coincident", 30, 3, 29, 3),
    Sketcher.Constraint("Coincident", 35, 3, 34, 3),
    Sketcher.Constraint("Coincident", 41, 3, 40, 3),
    Sketcher.Constraint("Equal", 3, 8),
    Sketcher.Constraint("Equal", 4, 9),
    Sketcher.Constraint("Equal", 8, 13),
    Sketcher.Constraint("Equal", 9, 14),
    Sketcher.Constraint("Equal", 13, 16),
    Sketcher.Constraint("Equal", 14, 19),
    Sketcher.Constraint("Equal", 16, 21),
    Sketcher.Constraint("Equal", 21, 29),
    Sketcher.Constraint("Equal", 24, 30),
    Sketcher.Constraint("Equal", 29, 34),
    Sketcher.Constraint("Equal", 30, 35),
    Sketcher.Constraint("Equal", 27, 37),
    Sketcher.Constraint("Equal", 34, 40),
    Sketcher.Constraint("Equal", 35, 41),
    Sketcher.Constraint("Symmetric", 3, 3, 16, 3, -2),
    Sketcher.Constraint("PointOnObject", 8, 3, -2),
    Sketcher.Constraint("Horizontal", 23, 3, 20, 2),
    Sketcher.Constraint("Horizontal", 6, 2, 31, 2),
    Sketcher.Constraint("Vertical", 27, 3, 37, 3),
    Sketcher.Constraint("Vertical", 30, 3, 40, 3),
    Sketcher.Constraint("Vertical", 19, 3, 15, 2),
    Sketcher.Constraint("Vertical", 1, 2, 25, 2),
    Sketcher.Constraint("Vertical", 27, 1, 36, 2),
    Sketcher.Constraint("Equal", 2, 17),
    Sketcher.Constraint("Equal", 17, 5),
    Sketcher.Constraint("Equal", 7, 10),
    Sketcher.Constraint("Equal", 39, 31),
    Sketcher.Constraint("Radius", 27, Q("18 mm")),
    Sketcher.Constraint("Diameter", 24, Q("3.7 mm")),
    Sketcher.Constraint("DistanceX", 27, 3, -1, 1, Q("28 mm")),
    Sketcher.Constraint("DistanceY", -1, 1, 27, 3, Q("35 mm")),
    Sketcher.Constraint("DistanceX", -1, 1, 34, 3, Q("15 mm")),
    Sketcher.Constraint("DistanceY", 37, 3, -1, 1, Q("30 mm")),
    Sketcher.Constraint("DistanceY", 5, 2, -1, 1, Q("48 mm")),
    Sketcher.Constraint("DistanceY", -1, 1, 10, 2, Q("53 mm")),
    Sketcher.Constraint("DistanceX", -1, 1, 11, 2, Q("30 mm")),
    Sketcher.Constraint("DistanceX", 14, 3, 16, 3, Q("16 mm")),
    Sketcher.Constraint("DistanceX", 25, 2, 25, 1, Q("4.75 mm")),
    Sketcher.Constraint("DistanceY", -1, 1, 29, 3, Q("32.5 mm")),
    Sketcher.Constraint("DistanceY", -1, 1, 21, 3, Q("40.17 mm")),
    Sketcher.Constraint("DistanceY", 0, 2, -1, 1, Q("7.36 mm")),
    Sketcher.Constraint("Diameter", 4, Q("4.467916 mm")),
    Sketcher.Constraint("Radius", 3, Q("3.857864 mm")),
    Sketcher.Constraint("Radius", 23, Q("13.697893 mm")),
    Sketcher.Constraint("DistanceX", 20, 2, 20, 1, Q("4.761521 mm")),
    Sketcher.Constraint("DistanceY", 18, 2, 18, 1, Q("7.737417 mm")),
    Sketcher.Constraint("DistanceX", -1, 1, 21, 3, Q("41.19059 mm")),
])
sketch10.setExpression("Constraints[91]", "Params.sketch10_radius")
sketch10.setExpression("Constraints[92]", "Params.sketch10_diameter")
sketch10.setExpression("Constraints[101]", "Params.sketch10_width")
pad4 = body.newObject("PartDesign::Pad", "Pad003")
pad4.Profile = sketch10
pad4.setExpression("Length", "Params.pad4_length")
pad4.Reversed = True

doc.recompute()
